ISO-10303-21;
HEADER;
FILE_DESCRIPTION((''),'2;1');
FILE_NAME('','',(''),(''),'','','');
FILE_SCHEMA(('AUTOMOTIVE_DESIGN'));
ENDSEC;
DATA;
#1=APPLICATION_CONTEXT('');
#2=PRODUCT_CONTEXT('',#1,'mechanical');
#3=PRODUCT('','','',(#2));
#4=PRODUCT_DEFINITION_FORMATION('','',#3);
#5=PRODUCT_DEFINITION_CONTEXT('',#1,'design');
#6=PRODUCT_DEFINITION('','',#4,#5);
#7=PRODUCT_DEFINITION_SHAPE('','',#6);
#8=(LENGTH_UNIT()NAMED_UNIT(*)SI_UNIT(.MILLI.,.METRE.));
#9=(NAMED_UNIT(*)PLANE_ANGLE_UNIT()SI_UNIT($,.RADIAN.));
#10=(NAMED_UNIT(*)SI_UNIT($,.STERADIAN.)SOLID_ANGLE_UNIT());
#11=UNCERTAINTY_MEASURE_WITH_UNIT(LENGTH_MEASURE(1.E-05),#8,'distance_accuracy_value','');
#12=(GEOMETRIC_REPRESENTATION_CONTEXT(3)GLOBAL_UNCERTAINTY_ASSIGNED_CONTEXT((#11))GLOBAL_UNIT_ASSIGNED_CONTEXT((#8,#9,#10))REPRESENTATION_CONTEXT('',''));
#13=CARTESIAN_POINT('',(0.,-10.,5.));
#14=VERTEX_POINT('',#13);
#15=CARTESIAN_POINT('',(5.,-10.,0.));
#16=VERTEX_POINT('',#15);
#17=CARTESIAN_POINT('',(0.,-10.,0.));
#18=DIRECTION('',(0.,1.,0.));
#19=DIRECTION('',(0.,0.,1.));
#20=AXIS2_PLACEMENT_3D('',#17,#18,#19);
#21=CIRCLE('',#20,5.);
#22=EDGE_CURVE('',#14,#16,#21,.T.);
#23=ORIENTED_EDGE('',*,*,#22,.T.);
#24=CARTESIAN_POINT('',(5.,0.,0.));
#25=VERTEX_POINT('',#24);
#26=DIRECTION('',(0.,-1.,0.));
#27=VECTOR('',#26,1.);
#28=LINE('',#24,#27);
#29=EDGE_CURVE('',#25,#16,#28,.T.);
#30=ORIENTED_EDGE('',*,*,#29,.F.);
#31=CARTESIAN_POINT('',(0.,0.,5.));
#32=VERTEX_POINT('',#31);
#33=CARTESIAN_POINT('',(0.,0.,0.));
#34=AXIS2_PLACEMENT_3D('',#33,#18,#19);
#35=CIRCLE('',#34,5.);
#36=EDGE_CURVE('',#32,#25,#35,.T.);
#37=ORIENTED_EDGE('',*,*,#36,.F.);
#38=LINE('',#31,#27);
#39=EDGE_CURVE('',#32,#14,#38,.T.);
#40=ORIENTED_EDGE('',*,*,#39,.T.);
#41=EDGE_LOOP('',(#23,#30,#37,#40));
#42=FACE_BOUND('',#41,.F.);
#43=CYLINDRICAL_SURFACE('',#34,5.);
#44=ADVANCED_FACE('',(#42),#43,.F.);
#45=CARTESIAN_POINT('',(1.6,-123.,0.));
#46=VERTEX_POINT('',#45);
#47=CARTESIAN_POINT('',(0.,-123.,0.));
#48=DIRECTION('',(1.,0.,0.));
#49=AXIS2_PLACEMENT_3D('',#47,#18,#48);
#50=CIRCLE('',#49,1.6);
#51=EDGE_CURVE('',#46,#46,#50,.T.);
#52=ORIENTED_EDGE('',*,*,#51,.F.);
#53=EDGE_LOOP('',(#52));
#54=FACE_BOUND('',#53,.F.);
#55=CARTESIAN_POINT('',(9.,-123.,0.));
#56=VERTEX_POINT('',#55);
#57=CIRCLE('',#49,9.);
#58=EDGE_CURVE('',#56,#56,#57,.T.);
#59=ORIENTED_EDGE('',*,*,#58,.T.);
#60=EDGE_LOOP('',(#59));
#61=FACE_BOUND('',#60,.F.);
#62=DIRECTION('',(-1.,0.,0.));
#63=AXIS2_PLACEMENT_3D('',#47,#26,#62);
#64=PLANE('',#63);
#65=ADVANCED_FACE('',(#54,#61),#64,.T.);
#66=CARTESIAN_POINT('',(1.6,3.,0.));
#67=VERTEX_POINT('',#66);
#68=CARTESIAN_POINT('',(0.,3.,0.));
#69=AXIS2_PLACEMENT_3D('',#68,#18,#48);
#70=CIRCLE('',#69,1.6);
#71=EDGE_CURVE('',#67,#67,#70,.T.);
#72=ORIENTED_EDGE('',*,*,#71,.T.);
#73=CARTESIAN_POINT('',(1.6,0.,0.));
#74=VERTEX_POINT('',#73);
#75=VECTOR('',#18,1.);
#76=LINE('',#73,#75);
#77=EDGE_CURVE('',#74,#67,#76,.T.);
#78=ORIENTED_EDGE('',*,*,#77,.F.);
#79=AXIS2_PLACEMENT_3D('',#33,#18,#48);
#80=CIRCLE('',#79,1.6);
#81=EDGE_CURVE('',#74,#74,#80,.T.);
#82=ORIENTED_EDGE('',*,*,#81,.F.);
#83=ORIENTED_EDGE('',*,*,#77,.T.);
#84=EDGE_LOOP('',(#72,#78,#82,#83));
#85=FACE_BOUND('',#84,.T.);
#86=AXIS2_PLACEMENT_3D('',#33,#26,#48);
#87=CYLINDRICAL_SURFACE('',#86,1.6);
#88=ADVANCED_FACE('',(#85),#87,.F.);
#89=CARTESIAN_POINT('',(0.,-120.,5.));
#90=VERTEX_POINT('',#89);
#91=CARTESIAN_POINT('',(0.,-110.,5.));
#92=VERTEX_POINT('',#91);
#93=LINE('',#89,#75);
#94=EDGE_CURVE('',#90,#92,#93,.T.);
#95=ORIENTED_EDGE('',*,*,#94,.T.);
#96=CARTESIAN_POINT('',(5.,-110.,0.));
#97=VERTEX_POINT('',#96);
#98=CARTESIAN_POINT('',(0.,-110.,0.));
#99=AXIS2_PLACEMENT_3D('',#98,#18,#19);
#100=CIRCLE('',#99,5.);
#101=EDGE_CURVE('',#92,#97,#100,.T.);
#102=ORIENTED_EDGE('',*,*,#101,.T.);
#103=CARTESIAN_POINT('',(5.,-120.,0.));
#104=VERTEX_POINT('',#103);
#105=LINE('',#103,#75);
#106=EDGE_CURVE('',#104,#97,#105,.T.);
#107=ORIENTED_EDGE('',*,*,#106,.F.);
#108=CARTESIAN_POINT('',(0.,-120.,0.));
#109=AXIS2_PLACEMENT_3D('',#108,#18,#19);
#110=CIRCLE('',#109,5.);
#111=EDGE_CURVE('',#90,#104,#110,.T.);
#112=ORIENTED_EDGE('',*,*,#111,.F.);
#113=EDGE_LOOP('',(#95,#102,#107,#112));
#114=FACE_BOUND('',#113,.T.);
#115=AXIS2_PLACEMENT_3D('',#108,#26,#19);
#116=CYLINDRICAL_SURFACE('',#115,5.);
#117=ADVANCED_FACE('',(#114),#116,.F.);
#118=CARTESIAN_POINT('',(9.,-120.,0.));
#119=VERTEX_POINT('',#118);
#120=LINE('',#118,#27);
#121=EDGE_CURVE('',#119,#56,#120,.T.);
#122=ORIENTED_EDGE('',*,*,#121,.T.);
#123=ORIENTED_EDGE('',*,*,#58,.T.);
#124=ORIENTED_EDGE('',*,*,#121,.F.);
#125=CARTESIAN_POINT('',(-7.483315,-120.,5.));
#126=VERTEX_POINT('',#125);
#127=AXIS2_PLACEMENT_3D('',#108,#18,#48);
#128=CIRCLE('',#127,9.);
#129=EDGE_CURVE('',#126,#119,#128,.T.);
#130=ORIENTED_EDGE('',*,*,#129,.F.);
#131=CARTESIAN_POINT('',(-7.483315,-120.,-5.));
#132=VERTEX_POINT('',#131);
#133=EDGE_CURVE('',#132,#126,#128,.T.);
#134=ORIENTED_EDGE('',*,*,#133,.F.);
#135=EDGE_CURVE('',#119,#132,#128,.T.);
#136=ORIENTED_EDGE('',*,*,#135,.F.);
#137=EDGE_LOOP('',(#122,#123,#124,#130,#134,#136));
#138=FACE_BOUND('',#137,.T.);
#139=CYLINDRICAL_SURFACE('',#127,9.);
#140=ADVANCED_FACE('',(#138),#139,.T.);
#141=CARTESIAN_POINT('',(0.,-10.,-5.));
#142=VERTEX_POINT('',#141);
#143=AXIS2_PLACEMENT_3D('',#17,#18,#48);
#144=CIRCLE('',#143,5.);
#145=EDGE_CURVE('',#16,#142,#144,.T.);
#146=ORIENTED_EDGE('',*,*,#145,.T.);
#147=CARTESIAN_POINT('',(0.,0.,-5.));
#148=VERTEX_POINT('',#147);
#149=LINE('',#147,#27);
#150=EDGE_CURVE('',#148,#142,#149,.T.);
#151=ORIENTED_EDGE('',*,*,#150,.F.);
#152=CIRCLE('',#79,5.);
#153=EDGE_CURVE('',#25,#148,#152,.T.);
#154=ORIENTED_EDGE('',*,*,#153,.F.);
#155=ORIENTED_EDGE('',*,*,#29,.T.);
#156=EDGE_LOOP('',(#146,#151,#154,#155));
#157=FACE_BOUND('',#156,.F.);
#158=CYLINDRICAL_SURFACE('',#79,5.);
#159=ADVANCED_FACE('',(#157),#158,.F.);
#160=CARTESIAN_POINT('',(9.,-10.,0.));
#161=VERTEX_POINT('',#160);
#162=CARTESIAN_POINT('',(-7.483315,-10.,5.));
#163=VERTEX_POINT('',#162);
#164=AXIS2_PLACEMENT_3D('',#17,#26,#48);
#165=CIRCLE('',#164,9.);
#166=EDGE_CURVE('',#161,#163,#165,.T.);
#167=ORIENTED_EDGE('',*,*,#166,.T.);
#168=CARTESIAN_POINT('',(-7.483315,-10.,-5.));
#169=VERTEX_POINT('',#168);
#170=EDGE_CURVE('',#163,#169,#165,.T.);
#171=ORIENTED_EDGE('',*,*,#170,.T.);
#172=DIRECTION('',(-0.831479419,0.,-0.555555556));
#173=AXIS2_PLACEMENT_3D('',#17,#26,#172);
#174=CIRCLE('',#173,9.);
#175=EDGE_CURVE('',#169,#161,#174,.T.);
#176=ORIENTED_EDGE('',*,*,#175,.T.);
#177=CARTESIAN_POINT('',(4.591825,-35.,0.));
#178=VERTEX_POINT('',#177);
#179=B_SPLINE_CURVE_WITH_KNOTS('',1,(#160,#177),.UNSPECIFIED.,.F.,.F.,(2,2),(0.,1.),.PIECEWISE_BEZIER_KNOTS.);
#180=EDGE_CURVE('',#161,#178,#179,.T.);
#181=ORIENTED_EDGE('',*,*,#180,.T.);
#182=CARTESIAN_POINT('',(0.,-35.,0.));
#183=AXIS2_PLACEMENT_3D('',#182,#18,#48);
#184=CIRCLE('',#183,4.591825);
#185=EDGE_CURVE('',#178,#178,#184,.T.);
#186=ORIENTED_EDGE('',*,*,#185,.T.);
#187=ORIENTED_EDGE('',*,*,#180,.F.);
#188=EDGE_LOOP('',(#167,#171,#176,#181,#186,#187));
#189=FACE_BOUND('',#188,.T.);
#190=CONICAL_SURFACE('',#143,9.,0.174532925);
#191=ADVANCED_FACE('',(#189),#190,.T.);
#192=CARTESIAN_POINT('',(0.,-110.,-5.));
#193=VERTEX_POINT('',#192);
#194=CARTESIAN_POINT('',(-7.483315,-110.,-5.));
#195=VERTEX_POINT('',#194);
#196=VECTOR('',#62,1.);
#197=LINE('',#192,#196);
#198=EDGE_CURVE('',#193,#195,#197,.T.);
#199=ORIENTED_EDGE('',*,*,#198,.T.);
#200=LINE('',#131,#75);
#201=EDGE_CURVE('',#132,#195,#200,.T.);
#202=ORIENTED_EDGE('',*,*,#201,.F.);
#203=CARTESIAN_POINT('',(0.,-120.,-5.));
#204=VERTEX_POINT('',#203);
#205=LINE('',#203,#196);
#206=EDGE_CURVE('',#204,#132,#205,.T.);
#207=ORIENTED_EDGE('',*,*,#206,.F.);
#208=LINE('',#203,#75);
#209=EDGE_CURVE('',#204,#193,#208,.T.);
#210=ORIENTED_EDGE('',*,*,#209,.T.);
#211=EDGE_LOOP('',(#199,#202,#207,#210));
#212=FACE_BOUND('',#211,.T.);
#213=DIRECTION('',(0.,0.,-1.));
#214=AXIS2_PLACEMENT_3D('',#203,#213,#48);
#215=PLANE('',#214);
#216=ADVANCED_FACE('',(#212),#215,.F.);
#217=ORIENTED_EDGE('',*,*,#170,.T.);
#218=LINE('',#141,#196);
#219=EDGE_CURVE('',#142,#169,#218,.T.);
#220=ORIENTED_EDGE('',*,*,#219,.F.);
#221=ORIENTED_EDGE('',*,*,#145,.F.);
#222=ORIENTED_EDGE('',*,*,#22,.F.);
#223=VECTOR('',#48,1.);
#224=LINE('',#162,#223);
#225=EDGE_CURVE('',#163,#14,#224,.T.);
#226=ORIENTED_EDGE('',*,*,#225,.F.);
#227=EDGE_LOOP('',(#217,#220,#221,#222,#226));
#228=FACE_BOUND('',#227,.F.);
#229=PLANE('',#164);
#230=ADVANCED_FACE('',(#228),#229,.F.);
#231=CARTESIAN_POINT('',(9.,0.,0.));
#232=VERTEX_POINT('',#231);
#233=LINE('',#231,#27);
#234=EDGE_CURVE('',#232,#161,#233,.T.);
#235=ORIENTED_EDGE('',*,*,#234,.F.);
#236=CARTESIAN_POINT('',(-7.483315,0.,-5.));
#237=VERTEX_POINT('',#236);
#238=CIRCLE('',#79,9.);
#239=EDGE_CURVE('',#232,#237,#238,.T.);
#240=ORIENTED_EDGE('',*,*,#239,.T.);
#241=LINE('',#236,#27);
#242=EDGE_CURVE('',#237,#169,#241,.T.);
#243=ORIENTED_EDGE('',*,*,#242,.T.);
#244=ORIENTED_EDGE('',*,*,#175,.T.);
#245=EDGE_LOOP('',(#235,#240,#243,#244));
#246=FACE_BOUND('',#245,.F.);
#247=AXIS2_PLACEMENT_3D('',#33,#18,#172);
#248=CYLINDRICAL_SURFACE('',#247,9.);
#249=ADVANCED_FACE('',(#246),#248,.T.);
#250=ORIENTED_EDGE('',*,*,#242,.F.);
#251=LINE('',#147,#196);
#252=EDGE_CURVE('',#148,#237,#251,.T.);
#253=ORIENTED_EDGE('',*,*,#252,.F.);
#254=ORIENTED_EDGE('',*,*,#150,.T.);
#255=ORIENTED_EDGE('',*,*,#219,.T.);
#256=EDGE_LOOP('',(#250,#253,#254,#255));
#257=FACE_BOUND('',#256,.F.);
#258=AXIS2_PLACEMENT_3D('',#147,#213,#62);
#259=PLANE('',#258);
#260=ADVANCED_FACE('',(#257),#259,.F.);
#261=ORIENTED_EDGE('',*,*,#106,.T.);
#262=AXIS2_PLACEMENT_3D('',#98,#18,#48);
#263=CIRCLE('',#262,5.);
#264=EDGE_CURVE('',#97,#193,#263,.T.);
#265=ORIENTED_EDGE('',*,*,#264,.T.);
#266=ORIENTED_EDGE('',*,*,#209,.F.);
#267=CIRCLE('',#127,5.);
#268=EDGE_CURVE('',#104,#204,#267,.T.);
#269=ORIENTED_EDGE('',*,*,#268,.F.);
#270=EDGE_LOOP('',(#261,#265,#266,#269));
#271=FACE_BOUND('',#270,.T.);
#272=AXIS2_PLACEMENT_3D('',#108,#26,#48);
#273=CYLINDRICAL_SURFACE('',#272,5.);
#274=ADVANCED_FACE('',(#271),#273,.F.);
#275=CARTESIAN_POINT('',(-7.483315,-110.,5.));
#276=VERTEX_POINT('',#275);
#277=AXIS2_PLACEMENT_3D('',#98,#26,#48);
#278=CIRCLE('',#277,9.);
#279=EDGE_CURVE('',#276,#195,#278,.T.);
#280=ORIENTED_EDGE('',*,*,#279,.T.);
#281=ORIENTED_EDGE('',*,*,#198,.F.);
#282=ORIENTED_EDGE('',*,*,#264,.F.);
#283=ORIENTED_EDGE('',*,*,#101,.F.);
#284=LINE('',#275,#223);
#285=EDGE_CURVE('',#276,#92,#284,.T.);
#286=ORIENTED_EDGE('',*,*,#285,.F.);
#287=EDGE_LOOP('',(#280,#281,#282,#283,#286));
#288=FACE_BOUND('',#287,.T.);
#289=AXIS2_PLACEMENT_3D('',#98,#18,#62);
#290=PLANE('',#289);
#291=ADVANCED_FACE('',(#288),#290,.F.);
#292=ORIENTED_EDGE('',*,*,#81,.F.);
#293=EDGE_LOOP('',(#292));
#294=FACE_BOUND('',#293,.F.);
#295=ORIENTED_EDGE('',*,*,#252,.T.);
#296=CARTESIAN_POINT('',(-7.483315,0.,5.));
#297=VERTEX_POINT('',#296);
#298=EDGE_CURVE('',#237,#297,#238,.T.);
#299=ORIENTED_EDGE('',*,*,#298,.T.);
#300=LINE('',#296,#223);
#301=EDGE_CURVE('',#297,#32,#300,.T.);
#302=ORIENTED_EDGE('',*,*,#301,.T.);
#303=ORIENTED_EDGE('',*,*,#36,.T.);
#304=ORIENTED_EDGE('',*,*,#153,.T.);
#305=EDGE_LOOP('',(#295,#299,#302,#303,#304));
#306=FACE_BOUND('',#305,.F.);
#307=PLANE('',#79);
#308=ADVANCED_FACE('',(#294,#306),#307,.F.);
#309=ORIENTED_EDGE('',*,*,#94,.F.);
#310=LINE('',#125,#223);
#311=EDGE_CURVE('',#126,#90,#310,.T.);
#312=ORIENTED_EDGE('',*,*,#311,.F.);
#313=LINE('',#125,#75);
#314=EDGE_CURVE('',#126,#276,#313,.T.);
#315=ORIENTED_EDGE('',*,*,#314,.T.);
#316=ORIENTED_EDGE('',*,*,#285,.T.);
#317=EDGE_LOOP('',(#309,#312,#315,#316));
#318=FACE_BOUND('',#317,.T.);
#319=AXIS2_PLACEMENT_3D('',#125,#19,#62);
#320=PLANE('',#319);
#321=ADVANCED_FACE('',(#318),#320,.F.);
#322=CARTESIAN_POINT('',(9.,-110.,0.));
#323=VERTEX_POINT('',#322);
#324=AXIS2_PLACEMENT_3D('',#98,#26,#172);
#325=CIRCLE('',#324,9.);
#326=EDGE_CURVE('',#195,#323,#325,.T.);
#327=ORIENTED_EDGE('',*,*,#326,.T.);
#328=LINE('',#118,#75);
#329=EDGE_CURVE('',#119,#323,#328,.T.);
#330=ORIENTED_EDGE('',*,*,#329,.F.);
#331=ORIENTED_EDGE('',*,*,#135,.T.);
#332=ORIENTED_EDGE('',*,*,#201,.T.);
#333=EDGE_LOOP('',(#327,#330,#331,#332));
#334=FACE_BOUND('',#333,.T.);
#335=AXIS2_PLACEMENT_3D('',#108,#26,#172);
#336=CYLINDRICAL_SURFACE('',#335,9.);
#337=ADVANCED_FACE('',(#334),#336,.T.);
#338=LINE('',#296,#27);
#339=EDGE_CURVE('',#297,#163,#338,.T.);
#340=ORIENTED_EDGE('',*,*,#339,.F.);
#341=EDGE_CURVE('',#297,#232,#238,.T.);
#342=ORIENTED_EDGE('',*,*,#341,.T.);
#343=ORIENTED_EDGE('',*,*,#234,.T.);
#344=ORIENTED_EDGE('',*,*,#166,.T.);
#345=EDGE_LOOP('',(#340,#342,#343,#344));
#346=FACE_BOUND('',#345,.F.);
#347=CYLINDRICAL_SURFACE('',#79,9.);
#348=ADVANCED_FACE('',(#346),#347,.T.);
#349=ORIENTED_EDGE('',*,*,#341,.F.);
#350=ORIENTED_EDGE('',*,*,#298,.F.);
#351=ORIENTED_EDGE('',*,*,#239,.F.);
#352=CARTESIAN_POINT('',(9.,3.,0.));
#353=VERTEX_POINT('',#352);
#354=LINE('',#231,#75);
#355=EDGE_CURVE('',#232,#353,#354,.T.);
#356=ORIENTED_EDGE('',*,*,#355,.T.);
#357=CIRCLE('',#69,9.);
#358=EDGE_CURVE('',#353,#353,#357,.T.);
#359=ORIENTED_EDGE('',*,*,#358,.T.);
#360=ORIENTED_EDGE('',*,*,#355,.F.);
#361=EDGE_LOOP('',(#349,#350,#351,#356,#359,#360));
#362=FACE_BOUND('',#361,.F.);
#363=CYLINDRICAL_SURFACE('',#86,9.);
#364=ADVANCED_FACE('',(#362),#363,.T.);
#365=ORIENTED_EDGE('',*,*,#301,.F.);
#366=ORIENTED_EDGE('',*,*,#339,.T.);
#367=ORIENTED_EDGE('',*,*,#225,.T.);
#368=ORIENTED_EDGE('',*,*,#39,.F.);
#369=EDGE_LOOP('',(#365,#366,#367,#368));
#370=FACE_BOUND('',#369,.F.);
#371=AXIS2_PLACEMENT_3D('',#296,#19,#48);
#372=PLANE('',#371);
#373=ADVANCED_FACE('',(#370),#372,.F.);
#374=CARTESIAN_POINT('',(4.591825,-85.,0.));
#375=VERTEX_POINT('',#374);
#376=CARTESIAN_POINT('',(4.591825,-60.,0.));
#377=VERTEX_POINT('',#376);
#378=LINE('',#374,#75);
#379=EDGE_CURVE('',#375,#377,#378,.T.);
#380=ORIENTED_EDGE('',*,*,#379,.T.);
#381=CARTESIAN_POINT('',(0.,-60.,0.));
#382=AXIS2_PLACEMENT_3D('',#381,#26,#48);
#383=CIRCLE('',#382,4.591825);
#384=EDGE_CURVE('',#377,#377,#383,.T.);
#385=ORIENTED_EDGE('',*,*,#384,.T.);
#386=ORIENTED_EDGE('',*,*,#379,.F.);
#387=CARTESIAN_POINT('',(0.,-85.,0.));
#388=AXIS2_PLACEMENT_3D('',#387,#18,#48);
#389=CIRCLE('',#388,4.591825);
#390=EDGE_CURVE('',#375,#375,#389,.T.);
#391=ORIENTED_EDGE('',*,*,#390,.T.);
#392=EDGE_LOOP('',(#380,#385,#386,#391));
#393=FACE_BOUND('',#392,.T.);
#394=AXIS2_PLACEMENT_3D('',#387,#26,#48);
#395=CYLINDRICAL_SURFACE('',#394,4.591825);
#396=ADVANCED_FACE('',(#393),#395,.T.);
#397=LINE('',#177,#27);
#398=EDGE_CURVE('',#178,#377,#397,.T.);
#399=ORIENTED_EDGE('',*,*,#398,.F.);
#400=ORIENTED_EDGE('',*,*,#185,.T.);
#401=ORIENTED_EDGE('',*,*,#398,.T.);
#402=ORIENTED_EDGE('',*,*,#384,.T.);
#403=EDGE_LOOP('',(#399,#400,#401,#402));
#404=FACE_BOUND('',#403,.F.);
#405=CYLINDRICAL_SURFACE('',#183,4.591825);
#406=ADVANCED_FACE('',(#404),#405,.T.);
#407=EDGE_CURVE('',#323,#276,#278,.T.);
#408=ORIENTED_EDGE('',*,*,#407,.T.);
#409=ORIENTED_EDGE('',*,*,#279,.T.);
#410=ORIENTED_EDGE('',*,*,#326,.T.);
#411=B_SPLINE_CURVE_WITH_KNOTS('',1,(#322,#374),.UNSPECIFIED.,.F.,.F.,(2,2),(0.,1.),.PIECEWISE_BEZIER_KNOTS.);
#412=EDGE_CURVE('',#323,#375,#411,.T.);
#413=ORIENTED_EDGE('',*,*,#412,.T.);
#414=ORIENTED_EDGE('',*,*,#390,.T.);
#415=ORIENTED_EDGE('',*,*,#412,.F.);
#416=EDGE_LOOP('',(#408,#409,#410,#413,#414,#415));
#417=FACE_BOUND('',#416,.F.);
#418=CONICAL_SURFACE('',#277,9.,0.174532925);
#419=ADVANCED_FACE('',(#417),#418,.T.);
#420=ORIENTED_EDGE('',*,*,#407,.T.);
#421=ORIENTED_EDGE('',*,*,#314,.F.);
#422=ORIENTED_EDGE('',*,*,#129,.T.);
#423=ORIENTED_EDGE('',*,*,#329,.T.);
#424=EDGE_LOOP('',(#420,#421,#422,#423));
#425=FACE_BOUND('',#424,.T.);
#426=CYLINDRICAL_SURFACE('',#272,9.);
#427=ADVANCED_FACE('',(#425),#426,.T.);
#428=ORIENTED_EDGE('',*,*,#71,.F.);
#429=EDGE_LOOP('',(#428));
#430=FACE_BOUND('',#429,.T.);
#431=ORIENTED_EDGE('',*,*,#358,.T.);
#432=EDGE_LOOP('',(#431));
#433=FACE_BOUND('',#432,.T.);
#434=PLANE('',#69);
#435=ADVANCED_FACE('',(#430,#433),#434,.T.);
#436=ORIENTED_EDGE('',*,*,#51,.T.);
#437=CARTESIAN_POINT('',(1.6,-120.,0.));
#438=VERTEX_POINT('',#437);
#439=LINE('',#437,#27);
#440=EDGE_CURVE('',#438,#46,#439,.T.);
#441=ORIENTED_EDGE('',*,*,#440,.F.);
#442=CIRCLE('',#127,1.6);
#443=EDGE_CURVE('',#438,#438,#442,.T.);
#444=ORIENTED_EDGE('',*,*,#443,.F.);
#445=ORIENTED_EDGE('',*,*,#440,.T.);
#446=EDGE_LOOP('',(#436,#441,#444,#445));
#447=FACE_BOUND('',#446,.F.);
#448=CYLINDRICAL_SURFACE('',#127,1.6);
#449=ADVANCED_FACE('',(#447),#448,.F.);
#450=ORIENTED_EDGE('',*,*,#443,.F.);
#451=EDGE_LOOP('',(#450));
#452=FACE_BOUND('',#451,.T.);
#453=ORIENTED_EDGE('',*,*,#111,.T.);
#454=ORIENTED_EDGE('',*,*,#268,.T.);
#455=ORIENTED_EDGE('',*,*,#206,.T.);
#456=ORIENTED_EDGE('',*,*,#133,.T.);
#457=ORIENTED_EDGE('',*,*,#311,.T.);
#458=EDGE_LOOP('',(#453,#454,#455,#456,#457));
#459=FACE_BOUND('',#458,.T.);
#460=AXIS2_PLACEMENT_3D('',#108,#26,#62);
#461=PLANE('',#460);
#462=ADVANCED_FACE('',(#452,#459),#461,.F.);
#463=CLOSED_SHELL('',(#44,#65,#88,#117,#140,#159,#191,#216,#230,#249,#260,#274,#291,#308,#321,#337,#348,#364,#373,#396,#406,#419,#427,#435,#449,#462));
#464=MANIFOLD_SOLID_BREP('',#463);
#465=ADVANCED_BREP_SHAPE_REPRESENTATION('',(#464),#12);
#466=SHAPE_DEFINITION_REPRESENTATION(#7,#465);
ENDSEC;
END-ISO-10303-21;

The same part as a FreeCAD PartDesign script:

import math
import FreeCAD as App
import Part
import Sketcher
from FreeCAD import Vector
Q = App.Units.Quantity

doc = App.newDocument("Part")
body = doc.addObject("PartDesign::Body", "Body")

sketch1 = body.newObject("Sketcher::SketchObject", "Sketch")
sketch1.AttachmentSupport = (doc.getObject("XZ_Plane"), [""])
sketch1.MapMode = "FlatFace"
sketch1.addGeometry(Part.Circle(Vector(0, 0, 0), Vector(0, 0, 1), 9), False)
sketch1.addGeometry(Part.Circle(Vector(0, 0, 0), Vector(0, 0, 1), 1.6), False)
sketch1.addConstraint(Sketcher.Constraint("Coincident", 0, 3, -1, 1))
sketch1.addConstraint(Sketcher.Constraint("Coincident", 1, 3, -1, 1))
sketch1.addConstraint(Sketcher.Constraint("Diameter", 0, Q("18 mm")))
sketch1.addConstraint(Sketcher.Constraint("Diameter", 1, Q("3.2 mm")))
pad1 = body.newObject("PartDesign::Pad", "Pad")
pad1.Profile = sketch1
pad1.Length = 3
pad1.Reversed = True

sketch2 = body.newObject("Sketcher::SketchObject", "Sketch001")
sketch2.AttachmentSupport = (doc.getObject("XZ_Plane"), [""])
sketch2.MapMode = "FlatFace"
sketch2.addGeometry(Part.LineSegment(Vector(-7, 5, 0), Vector(0, 5, 0)), False)
sketch2.addGeometry(Part.ArcOfCircle(Part.Circle(Vector(0, 0, 0), Vector(0, 0, 1), 5), math.radians(0), math.radians(90)), False)
sketch2.addGeometry(Part.ArcOfCircle(Part.Circle(Vector(0, 0, 0), Vector(0, 0, 1), 5), math.radians(-90), math.radians(0)), False)
sketch2.addGeometry(Part.LineSegment(Vector(0, -5, 0), Vector(-7, -5, 0)), False)
sketch2.addGeometry(Part.ArcOfCircle(Part.Circle(Vector(0, 0, 0), Vector(0, 0, 1), 9), math.radians(-146), math.radians(0)), False)
sketch2.addGeometry(Part.ArcOfCircle(Part.Circle(Vector(0, 0, 0), Vector(0, 0, 1), 9), math.radians(0), math.radians(146)), False)
sketch2.addConstraint(Sketcher.Constraint("Tangent", 0, 2, 1, 2))
sketch2.addConstraint(Sketcher.Constraint("Tangent", 1, 1, 2, 2))
sketch2.addConstraint(Sketcher.Constraint("Tangent", 2, 1, 3, 1))
sketch2.addConstraint(Sketcher.Constraint("Coincident", 3, 2, 4, 1))
sketch2.addConstraint(Sketcher.Constraint("Tangent", 4, 2, 5, 1))
sketch2.addConstraint(Sketcher.Constraint("Coincident", 5, 2, 0, 1))
sketch2.addConstraint(Sketcher.Constraint("Horizontal", 0))
sketch2.addConstraint(Sketcher.Constraint("Horizontal", 3))
sketch2.addConstraint(Sketcher.Constraint("Coincident", 1, 3, -1, 1))
sketch2.addConstraint(Sketcher.Constraint("Coincident", 4, 3, -1, 1))
sketch2.addConstraint(Sketcher.Constraint("Equal", 1, 2))
sketch2.addConstraint(Sketcher.Constraint("Equal", 4, 5))
sketch2.addConstraint(Sketcher.Constraint("PointOnObject", 1, 1, -1))
sketch2.addConstraint(Sketcher.Constraint("PointOnObject", 4, 2, -1))
sketch2.addConstraint(Sketcher.Constraint("Radius", 1, Q("5 mm")))
sketch2.addConstraint(Sketcher.Constraint("Radius", 4, Q("9 mm")))
pad2 = body.newObject("PartDesign::Pad", "Pad001")
pad2.Profile = sketch2
pad2.Length = 10

sketch3 = body.newObject("Sketcher::SketchObject", "Sketch002")
sketch3.AttachmentSupport = (doc.getObject("XZ_Plane"), [""])
sketch3.MapMode = "FlatFace"
sketch3.AttachmentOffset = App.Placement(Vector(0, 0, 10), App.Rotation())
sketch3.addGeometry(Part.Circle(Vector(0, 0, 0), Vector(0, 0, 1), 9), False)
sketch3.addConstraint(Sketcher.Constraint("Coincident", 0, 3, -1, 1))
sketch3.addConstraint(Sketcher.Constraint("Diameter", 0, Q("18 mm")))
pad3 = body.newObject("PartDesign::Pad", "Pad002")
pad3.Profile = sketch3
pad3.Length = 25
pad3.TaperAngle = -10

sketch4 = body.newObject("Sketcher::SketchObject", "Sketch003")
sketch4.AttachmentSupport = (doc.getObject("XZ_Plane"), [""])
sketch4.MapMode = "FlatFace"
sketch4.AttachmentOffset = App.Placement(Vector(0, 0, 35), App.Rotation())
sketch4.addGeometry(Part.Circle(Vector(0, 0, 0), Vector(0, 0, 1), 4.6), False)
sketch4.addConstraint(Sketcher.Constraint("Coincident", 0, 3, -1, 1))
sketch4.addConstraint(Sketcher.Constraint("Diameter", 0, Q("9.183651 mm")))
pad4 = body.newObject("PartDesign::Pad", "Pad003")
pad4.Profile = sketch4
pad4.Length = 25
doc.recompute()

datumplane = body.newObject("PartDesign::Plane", "DatumPlane")
datumplane.AttachmentSupport = (doc.getObject("XZ_Plane"), [""])
datumplane.MapMode = "FlatFace"
datumplane.AttachmentOffset = App.Placement(Vector(0, 0, 60), App.Rotation())
mirrored = body.newObject("PartDesign::Mirrored", "Mirrored")
mirrored.Originals = [pad1, pad2, pad3, pad4]
mirrored.MirrorPlane = (datumplane, [""])
body.Tip = mirrored

doc.recompute()
